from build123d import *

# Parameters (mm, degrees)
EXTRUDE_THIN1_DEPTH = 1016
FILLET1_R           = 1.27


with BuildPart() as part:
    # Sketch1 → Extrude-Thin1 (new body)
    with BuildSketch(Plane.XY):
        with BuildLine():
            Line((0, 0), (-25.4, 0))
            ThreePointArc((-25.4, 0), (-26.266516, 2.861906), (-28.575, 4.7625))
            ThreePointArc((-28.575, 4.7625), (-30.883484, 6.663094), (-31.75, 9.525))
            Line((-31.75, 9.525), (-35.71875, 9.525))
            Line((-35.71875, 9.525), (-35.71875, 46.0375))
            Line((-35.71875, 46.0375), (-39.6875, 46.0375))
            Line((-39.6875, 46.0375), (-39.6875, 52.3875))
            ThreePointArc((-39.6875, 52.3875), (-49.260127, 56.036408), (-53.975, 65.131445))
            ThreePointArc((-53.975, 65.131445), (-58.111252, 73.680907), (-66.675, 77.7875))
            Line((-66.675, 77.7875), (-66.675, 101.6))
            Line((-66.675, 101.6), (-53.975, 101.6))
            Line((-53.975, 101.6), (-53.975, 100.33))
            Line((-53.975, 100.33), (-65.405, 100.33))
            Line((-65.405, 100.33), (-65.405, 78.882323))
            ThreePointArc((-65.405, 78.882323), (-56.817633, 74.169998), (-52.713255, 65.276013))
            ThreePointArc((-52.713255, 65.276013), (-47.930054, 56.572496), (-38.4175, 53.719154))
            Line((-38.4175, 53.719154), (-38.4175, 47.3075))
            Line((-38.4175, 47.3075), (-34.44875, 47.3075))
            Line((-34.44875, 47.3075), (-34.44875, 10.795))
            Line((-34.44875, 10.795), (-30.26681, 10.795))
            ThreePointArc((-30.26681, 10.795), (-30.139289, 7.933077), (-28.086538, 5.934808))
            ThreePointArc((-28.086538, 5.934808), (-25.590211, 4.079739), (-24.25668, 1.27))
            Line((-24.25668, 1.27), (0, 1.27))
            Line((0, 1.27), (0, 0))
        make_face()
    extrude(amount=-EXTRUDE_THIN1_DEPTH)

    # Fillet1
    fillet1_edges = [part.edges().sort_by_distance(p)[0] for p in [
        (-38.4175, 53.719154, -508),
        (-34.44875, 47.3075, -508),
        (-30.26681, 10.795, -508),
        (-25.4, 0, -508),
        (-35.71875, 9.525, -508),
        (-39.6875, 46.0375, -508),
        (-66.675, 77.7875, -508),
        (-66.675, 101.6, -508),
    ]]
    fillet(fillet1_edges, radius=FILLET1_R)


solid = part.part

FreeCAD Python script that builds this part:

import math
import FreeCAD as App
import Part
import Sketcher
Q = App.Units.Quantity


def edges_at(feature, points):
    """Names of the edges that pass closest to the given points."""
    edges = feature.Shape.Edges
    near = lambda p: min(range(len(edges)), key=lambda i: edges[i].distToShape(Part.Vertex(*p))[0])
    return sorted({f"Edge{near(p) + 1}" for p in points})

doc = App.newDocument("Part")
body = doc.addObject("PartDesign::Body", "Body")

sketch1 = body.newObject("Sketcher::SketchObject", "Sketch")
sketch1.AttachmentSupport = (doc.getObject("XY_Plane"), [""])
sketch1.MapMode = "FlatFace"
sketch1.addGeometry([
    Part.LineSegment(App.Vector(-25.4, 0, 0), App.Vector(0, 0, 0)),
    Part.LineSegment(App.Vector(0, 0, 0), App.Vector(0, 1.27, 0)),
    Part.LineSegment(App.Vector(0, 1.27, 0), App.Vector(-24.25668, 1.27, 0)),
    Part.ArcOfCircle(Part.Circle(App.Vector(-30.559378, -0.000002, 0), App.Vector(0, 0, 1), 6.429378), math.radians(11.392619), math.radians(67.380114)),
    Part.ArcOfCircle(Part.Circle(App.Vector(-26.590625, 9.525, 0), App.Vector(0, 0, 1), 3.889375), math.radians(160.941669), math.radians(247.38014)),
    Part.LineSegment(App.Vector(-30.26681, 10.795, 0), App.Vector(-34.44875, 10.795, 0)),
    Part.LineSegment(App.Vector(-34.44875, 10.795, 0), App.Vector(-34.44875, 47.3075, 0)),
    Part.LineSegment(App.Vector(-34.44875, 47.3075, 0), App.Vector(-38.4175, 47.3075, 0)),
    Part.LineSegment(App.Vector(-38.4175, 47.3075, 0), App.Vector(-38.4175, 53.719154, 0)),
    Part.ArcOfCircle(Part.Circle(App.Vector(-39.687499, 66.768478, 0), App.Vector(0, 0, 1), 13.110979), math.radians(-173.463666), math.radians(-84.441309)),
    Part.ArcOfCircle(Part.Circle(App.Vector(-68.2625, 63.494412, 0), App.Vector(0, 0, 1), 15.650978), math.radians(6.536331), math.radians(79.480134)),
    Part.LineSegment(App.Vector(-65.405, 78.882323, 0), App.Vector(-65.405, 100.33, 0)),
    Part.LineSegment(App.Vector(-65.405, 100.33, 0), App.Vector(-53.975, 100.33, 0)),
    Part.LineSegment(App.Vector(-53.975, 100.33, 0), App.Vector(-53.975, 101.6, 0)),
    Part.LineSegment(App.Vector(-53.975, 101.6, 0), App.Vector(-66.675, 101.6, 0)),
    Part.LineSegment(App.Vector(-66.675, 101.6, 0), App.Vector(-66.675, 77.7875, 0)),
    Part.ArcOfCircle(Part.Circle(App.Vector(-68.262501, 63.494411, 0), App.Vector(0, 0, 1), 14.380979), math.radians(6.536337), math.radians(83.662264)),
    Part.ArcOfCircle(Part.Circle(App.Vector(-39.687499, 66.76848, 0), App.Vector(0, 0, 1), 14.38098), math.radians(-173.463662), math.radians(-90.000006)),
    Part.LineSegment(App.Vector(-39.6875, 52.3875, 0), App.Vector(-39.6875, 46.0375, 0)),
    Part.LineSegment(App.Vector(-39.6875, 46.0375, 0), App.Vector(-35.71875, 46.0375, 0)),
    Part.LineSegment(App.Vector(-35.71875, 46.0375, 0), App.Vector(-35.71875, 9.525, 0)),
    Part.LineSegment(App.Vector(-35.71875, 9.525, 0), App.Vector(-31.75, 9.525, 0)),
    Part.ArcOfCircle(Part.Circle(App.Vector(-26.590622, 9.525002, 0), App.Vector(0, 0, 1), 5.159378), math.radians(-179.999979), math.radians(-112.619886)),
    Part.ArcOfCircle(Part.Circle(App.Vector(-30.559378, -0.000002, 0), App.Vector(0, 0, 1), 5.159378), math.radians(0.000021), math.radians(67.380114)),
], False)
sketch1.addConstraint([
    Sketcher.Constraint("Coincident", 0, 2, 1, 1),
    Sketcher.Constraint("Coincident", 1, 2, 2, 1),
    Sketcher.Constraint("Coincident", 2, 2, 3, 1),
    Sketcher.Constraint("Tangent", 3, 2, 4, 2),
    Sketcher.Constraint("Coincident", 4, 1, 5, 1),
    Sketcher.Constraint("Coincident", 5, 2, 6, 1),
    Sketcher.Constraint("Coincident", 6, 2, 7, 1),
    Sketcher.Constraint("Coincident", 7, 2, 8, 1),
    Sketcher.Constraint("Coincident", 8, 2, 9, 2),
    Sketcher.Constraint("Tangent", 9, 1, 10, 1),
    Sketcher.Constraint("Coincident", 10, 2, 11, 1),
    Sketcher.Constraint("Coincident", 11, 2, 12, 1),
    Sketcher.Constraint("Coincident", 12, 2, 13, 1),
    Sketcher.Constraint("Coincident", 13, 2, 14, 1),
    Sketcher.Constraint("Coincident", 14, 2, 15, 1),
    Sketcher.Constraint("Coincident", 15, 2, 16, 2),
    Sketcher.Constraint("Tangent", 16, 1, 17, 1),
    Sketcher.Constraint("Coincident", 17, 2, 18, 1),
    Sketcher.Constraint("Coincident", 18, 2, 19, 1),
    Sketcher.Constraint("Coincident", 19, 2, 20, 1),
    Sketcher.Constraint("Coincident", 20, 2, 21, 1),
    Sketcher.Constraint("Coincident", 21, 2, 22, 1),
    Sketcher.Constraint("Tangent", 22, 2, 23, 2),
    Sketcher.Constraint("Coincident", 23, 1, 0, 1),
    Sketcher.Constraint("Horizontal", 0),
    Sketcher.Constraint("Vertical", 1),
    Sketcher.Constraint("Horizontal", 2),
    Sketcher.Constraint("Horizontal", 5),
    Sketcher.Constraint("Vertical", 6),
    Sketcher.Constraint("Horizontal", 7),
    Sketcher.Constraint("Vertical", 8),
    Sketcher.Constraint("Vertical", 11),
    Sketcher.Constraint("Horizontal", 12),
    Sketcher.Constraint("Vertical", 13),
    Sketcher.Constraint("Horizontal", 14),
    Sketcher.Constraint("Vertical", 15),
    Sketcher.Constraint("Vertical", 18),
    Sketcher.Constraint("Horizontal", 19),
    Sketcher.Constraint("Vertical", 20),
    Sketcher.Constraint("Horizontal", 21),
    Sketcher.Constraint("Coincident", 0, 2, -1, 1),
    Sketcher.Constraint("Coincident", 16, 3, 10, 3),
    Sketcher.Constraint("Coincident", 17, 3, 9, 3),
    Sketcher.Constraint("Coincident", 22, 3, 4, 3),
    Sketcher.Constraint("Coincident", 23, 3, 3, 3),
    Sketcher.Constraint("Equal", 16, 17),
    Sketcher.Constraint("Equal", 22, 23),
    Sketcher.Constraint("PointOnObject", 3, 3, -1),
    Sketcher.Constraint("Horizontal", 22, 3, 20, 2),
    Sketcher.Constraint("Vertical", 13, 2, 16, 1),
    Sketcher.Constraint("Vertical", 9, 3, 17, 2),
    Sketcher.Constraint("Equal", 7, 19),
    Sketcher.Constraint("Equal", 19, 21),
    Sketcher.Constraint("Equal", 1, 13),
    Sketcher.Constraint("Equal", 6, 20),
    Sketcher.Constraint("DistanceX", 0, 1, 0, 2, Q("1 in")),
    Sketcher.Constraint("DistanceX", 14, 2, 14, 1, Q("0.5 in")),
    Sketcher.Constraint("DistanceY", -1, 1, 13, 2, Q("4 in")),
    Sketcher.Constraint("Radius", 22, Q("0.2031251 in")),
    Sketcher.Constraint("DistanceX", 12, 1, 12, 2, Q("0.45 in")),
    Sketcher.Constraint("DistanceY", 1, 1, 1, 2, Q("0.05 in")),
    Sketcher.Constraint("DistanceY", 18, 2, 18, 1, Q("0.25 in")),
    Sketcher.Constraint("DistanceY", 7, 2, 17, 2, Q("0.2 in")),
    Sketcher.Constraint("DistanceX", 7, 2, 7, 1, Q("0.15625 in")),
    Sketcher.Constraint("DistanceY", 6, 1, 6, 2, Q("1.4375 in")),
    Sketcher.Constraint("DistanceY", 15, 2, 15, 1, Q("0.9375 in")),
    Sketcher.Constraint("DistanceX", 21, 2, -1, 1, Q("1.25 in")),
    Sketcher.Constraint("DistanceX", 9, 3, 7, 2, Q("0.05 in")),
    Sketcher.Constraint("DistanceX", 10, 3, -1, 1, Q("2.6875 in")),
    Sketcher.Constraint("Radius", 3, 6.429378),
    Sketcher.Constraint("Radius", 9, 13.110979),
])
pad1 = body.newObject("PartDesign::Pad", "Pad")
pad1.Profile = sketch1
pad1.Length = Q("40 in")
pad1.Reversed = True
doc.recompute()

fillet = body.newObject("PartDesign::Fillet", "Fillet")
fillet.Base = (pad1, edges_at(pad1, [
    (-38.417, 53.719, -508),
    (-34.449, 47.307, -508),
    (-30.267, 10.795, -508),
    (-25.4, 0, -508),
    (-35.719, 9.525, -508),
    (-39.688, 46.038, -508),
    (-66.675, 77.787, -508),
    (-66.675, 101.6, -508),
]))
fillet.Radius = Q("0.05 in")

doc.recompute()
